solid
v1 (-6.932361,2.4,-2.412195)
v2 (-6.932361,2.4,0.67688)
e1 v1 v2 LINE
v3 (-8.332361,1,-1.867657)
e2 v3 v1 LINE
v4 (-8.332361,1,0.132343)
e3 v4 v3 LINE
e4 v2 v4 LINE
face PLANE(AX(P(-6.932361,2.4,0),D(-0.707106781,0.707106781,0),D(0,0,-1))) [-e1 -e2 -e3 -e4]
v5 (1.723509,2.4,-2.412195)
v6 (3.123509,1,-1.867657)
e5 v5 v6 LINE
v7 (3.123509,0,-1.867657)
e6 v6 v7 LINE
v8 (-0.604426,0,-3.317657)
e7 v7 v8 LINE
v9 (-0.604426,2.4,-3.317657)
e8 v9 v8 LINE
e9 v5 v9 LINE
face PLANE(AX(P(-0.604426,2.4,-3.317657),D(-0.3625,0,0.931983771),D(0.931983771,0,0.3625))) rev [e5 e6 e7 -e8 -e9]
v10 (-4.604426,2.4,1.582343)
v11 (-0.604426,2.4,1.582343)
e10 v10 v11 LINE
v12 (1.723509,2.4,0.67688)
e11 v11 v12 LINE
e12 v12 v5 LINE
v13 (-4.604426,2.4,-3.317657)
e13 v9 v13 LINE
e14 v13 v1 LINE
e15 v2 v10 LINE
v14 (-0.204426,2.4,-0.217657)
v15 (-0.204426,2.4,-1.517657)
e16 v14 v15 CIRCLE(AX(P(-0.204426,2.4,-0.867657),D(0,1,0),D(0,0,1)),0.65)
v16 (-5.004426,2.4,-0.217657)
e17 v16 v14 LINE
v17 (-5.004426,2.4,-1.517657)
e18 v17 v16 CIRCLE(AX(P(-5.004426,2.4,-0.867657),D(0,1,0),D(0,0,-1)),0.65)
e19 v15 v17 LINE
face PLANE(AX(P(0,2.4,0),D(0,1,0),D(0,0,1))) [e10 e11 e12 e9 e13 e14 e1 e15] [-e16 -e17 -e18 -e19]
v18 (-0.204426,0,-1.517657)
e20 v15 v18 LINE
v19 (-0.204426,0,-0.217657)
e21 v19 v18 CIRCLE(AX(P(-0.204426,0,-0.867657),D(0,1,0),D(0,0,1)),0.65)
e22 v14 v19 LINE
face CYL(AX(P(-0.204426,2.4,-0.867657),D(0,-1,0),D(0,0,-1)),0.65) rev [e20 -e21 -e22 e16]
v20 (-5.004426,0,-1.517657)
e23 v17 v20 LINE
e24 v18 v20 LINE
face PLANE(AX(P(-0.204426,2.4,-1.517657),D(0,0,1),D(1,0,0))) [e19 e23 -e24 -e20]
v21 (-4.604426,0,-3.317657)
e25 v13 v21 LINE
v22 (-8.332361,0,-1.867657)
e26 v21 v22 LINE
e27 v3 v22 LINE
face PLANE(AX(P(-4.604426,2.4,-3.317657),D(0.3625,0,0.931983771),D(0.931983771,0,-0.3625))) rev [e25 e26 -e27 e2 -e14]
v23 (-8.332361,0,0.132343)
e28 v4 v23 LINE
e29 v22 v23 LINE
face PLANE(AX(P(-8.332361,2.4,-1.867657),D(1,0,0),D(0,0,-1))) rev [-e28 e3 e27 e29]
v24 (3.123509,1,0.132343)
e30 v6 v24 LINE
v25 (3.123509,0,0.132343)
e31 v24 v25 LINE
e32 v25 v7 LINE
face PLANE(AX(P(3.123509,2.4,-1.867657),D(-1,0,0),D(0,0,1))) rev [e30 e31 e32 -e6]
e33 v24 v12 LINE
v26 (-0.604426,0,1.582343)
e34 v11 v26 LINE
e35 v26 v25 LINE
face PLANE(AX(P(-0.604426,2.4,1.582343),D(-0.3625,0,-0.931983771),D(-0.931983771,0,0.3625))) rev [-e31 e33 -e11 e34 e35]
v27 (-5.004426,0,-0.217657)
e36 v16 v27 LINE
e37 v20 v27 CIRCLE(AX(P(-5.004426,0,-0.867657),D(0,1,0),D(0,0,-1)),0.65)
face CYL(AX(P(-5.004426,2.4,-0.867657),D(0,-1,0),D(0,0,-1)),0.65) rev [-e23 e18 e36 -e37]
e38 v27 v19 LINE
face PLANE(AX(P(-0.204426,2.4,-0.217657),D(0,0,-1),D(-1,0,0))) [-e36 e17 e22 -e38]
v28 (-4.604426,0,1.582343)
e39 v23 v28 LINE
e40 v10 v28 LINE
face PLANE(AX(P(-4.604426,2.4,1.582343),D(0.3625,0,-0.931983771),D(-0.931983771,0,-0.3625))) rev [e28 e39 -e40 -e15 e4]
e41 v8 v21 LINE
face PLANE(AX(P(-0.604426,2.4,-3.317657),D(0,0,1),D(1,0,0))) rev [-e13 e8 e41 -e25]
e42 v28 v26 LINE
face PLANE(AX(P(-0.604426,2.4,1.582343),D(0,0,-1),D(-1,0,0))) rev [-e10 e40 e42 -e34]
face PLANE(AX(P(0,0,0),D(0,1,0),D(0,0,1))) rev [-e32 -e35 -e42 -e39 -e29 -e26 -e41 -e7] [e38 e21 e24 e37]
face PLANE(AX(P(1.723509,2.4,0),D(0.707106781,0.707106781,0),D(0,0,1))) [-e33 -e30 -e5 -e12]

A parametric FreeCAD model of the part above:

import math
import FreeCAD as App
import Part
import Sketcher

V = App.Vector
Q = App.Units.Quantity


def edges_at(feature, points):
    """Names of the edges that pass closest to the given points."""
    edges = feature.Shape.Edges
    near = lambda p: min(range(len(edges)), key=lambda i: edges[i].distToShape(Part.Vertex(*p))[0])
    return sorted({f"Edge{near(p) + 1}" for p in points})


def add_polygon(sketch, points):
    """Adds a closed chain of lines whose ends are joined by coincident constraints."""
    first, n = sketch.GeometryCount, len(points)
    for a, b in zip(points, points[1:] + points[:1]):
        sketch.addGeometry(Part.LineSegment(App.Vector(*a, 0), App.Vector(*b, 0)), False)
    for i in range(n):
        sketch.addConstraint(Sketcher.Constraint("Coincident", first + i, 2, first + (i + 1) % n, 1))

doc = App.newDocument("Part")
body = doc.addObject("PartDesign::Body", "Body")

sketch1 = body.newObject("Sketcher::SketchObject", "Sketch")
sketch1.AttachmentSupport = (doc.getObject("XZ_Plane"), [""])
sketch1.MapMode = "FlatFace"
add_polygon(sketch1, [(-0.6, -3.3), (-4.6, -3.3), (-8.3, -1.9), (-8.3, 0.1), (-4.6, 1.6), (-0.6, 1.6), (3.1, 0.1), (3.1, -1.9)])
sketch1.addGeometry(Part.LineSegment(V(-5, -1.5, 0), V(-0.2, -1.5, 0)), False)
sketch1.addGeometry(Part.ArcOfCircle(Part.Circle(V(-0.2, -0.9, 0), V(0, 0, 1), 0.7), math.radians(-90), math.radians(90)), False)
sketch1.addGeometry(Part.LineSegment(V(-0.2, -0.2, 0), V(-5, -0.2, 0)), False)
sketch1.addGeometry(Part.ArcOfCircle(Part.Circle(V(-5, -0.9, 0), V(0, 0, 1), 0.7), math.radians(90), math.radians(270)), False)
sketch1.addConstraint([
    Sketcher.Constraint("Tangent", 8, 2, 9, 1),
    Sketcher.Constraint("Tangent", 9, 2, 10, 1),
    Sketcher.Constraint("Tangent", 10, 2, 11, 1),
    Sketcher.Constraint("Tangent", 11, 2, 8, 1),
    Sketcher.Constraint("Horizontal", 0),
    Sketcher.Constraint("Vertical", 2),
    Sketcher.Constraint("Horizontal", 4),
    Sketcher.Constraint("Vertical", 6),
    Sketcher.Constraint("Horizontal", 8),
    Sketcher.Constraint("Horizontal", 10),
    Sketcher.Constraint("Parallel", 1, 5),
    Sketcher.Constraint("Parallel", 3, 7),
    Sketcher.Constraint("Horizontal", 2, 2, 5, 2),
    Sketcher.Constraint("Horizontal", 1, 2, 6, 2),
    Sketcher.Constraint("Vertical", 0, 2, 3, 2),
    Sketcher.Constraint("Vertical", 4, 2, 7, 2),
    Sketcher.Constraint("DistanceX", 0, 2, 0, 1, Q("4 mm")),
    Sketcher.Constraint("DistanceY", 2, 1, 2, 2, Q("2 mm")),
    Sketcher.Constraint("Radius", 9, Q("0.65 mm")),
    Sketcher.Constraint("Distance", 1, Q("4 mm")),
    Sketcher.Constraint("DistanceX", 8, 1, 8, 2, Q("4.8 mm")),
    Sketcher.Constraint("DistanceY", 1, 2, 11, 3, Q("1 mm")),
    Sketcher.Constraint("DistanceX", 11, 3, 0, 2, Q("0.4 mm")),
    Sketcher.Constraint("DistanceY", 0, 2, 3, 2, Q("4.9 mm")),
    Sketcher.Constraint("DistanceX", 1, 2, -1, 1, Q("8.332361 mm")),
    Sketcher.Constraint("DistanceY", 9, 3, -1, 1, Q("0.867657 mm")),
])
pad1 = body.newObject("PartDesign::Pad", "Pad")
pad1.Profile = sketch1
pad1.Length = 2.4
pad1.Reversed = True
doc.recompute()

chamfer = body.newObject("PartDesign::Chamfer", "Chamfer")
chamfer.Base = (pad1, edges_at(pad1, [(-8.332, 2.4, -0.868)]))
chamfer.Size = 1.4
doc.recompute()

chamfer2 = body.newObject("PartDesign::Chamfer", "Chamfer001")
chamfer2.Base = (chamfer, edges_at(chamfer, [(3.124, 2.4, -0.868)]))
chamfer2.Size = 1.4

doc.recompute()
